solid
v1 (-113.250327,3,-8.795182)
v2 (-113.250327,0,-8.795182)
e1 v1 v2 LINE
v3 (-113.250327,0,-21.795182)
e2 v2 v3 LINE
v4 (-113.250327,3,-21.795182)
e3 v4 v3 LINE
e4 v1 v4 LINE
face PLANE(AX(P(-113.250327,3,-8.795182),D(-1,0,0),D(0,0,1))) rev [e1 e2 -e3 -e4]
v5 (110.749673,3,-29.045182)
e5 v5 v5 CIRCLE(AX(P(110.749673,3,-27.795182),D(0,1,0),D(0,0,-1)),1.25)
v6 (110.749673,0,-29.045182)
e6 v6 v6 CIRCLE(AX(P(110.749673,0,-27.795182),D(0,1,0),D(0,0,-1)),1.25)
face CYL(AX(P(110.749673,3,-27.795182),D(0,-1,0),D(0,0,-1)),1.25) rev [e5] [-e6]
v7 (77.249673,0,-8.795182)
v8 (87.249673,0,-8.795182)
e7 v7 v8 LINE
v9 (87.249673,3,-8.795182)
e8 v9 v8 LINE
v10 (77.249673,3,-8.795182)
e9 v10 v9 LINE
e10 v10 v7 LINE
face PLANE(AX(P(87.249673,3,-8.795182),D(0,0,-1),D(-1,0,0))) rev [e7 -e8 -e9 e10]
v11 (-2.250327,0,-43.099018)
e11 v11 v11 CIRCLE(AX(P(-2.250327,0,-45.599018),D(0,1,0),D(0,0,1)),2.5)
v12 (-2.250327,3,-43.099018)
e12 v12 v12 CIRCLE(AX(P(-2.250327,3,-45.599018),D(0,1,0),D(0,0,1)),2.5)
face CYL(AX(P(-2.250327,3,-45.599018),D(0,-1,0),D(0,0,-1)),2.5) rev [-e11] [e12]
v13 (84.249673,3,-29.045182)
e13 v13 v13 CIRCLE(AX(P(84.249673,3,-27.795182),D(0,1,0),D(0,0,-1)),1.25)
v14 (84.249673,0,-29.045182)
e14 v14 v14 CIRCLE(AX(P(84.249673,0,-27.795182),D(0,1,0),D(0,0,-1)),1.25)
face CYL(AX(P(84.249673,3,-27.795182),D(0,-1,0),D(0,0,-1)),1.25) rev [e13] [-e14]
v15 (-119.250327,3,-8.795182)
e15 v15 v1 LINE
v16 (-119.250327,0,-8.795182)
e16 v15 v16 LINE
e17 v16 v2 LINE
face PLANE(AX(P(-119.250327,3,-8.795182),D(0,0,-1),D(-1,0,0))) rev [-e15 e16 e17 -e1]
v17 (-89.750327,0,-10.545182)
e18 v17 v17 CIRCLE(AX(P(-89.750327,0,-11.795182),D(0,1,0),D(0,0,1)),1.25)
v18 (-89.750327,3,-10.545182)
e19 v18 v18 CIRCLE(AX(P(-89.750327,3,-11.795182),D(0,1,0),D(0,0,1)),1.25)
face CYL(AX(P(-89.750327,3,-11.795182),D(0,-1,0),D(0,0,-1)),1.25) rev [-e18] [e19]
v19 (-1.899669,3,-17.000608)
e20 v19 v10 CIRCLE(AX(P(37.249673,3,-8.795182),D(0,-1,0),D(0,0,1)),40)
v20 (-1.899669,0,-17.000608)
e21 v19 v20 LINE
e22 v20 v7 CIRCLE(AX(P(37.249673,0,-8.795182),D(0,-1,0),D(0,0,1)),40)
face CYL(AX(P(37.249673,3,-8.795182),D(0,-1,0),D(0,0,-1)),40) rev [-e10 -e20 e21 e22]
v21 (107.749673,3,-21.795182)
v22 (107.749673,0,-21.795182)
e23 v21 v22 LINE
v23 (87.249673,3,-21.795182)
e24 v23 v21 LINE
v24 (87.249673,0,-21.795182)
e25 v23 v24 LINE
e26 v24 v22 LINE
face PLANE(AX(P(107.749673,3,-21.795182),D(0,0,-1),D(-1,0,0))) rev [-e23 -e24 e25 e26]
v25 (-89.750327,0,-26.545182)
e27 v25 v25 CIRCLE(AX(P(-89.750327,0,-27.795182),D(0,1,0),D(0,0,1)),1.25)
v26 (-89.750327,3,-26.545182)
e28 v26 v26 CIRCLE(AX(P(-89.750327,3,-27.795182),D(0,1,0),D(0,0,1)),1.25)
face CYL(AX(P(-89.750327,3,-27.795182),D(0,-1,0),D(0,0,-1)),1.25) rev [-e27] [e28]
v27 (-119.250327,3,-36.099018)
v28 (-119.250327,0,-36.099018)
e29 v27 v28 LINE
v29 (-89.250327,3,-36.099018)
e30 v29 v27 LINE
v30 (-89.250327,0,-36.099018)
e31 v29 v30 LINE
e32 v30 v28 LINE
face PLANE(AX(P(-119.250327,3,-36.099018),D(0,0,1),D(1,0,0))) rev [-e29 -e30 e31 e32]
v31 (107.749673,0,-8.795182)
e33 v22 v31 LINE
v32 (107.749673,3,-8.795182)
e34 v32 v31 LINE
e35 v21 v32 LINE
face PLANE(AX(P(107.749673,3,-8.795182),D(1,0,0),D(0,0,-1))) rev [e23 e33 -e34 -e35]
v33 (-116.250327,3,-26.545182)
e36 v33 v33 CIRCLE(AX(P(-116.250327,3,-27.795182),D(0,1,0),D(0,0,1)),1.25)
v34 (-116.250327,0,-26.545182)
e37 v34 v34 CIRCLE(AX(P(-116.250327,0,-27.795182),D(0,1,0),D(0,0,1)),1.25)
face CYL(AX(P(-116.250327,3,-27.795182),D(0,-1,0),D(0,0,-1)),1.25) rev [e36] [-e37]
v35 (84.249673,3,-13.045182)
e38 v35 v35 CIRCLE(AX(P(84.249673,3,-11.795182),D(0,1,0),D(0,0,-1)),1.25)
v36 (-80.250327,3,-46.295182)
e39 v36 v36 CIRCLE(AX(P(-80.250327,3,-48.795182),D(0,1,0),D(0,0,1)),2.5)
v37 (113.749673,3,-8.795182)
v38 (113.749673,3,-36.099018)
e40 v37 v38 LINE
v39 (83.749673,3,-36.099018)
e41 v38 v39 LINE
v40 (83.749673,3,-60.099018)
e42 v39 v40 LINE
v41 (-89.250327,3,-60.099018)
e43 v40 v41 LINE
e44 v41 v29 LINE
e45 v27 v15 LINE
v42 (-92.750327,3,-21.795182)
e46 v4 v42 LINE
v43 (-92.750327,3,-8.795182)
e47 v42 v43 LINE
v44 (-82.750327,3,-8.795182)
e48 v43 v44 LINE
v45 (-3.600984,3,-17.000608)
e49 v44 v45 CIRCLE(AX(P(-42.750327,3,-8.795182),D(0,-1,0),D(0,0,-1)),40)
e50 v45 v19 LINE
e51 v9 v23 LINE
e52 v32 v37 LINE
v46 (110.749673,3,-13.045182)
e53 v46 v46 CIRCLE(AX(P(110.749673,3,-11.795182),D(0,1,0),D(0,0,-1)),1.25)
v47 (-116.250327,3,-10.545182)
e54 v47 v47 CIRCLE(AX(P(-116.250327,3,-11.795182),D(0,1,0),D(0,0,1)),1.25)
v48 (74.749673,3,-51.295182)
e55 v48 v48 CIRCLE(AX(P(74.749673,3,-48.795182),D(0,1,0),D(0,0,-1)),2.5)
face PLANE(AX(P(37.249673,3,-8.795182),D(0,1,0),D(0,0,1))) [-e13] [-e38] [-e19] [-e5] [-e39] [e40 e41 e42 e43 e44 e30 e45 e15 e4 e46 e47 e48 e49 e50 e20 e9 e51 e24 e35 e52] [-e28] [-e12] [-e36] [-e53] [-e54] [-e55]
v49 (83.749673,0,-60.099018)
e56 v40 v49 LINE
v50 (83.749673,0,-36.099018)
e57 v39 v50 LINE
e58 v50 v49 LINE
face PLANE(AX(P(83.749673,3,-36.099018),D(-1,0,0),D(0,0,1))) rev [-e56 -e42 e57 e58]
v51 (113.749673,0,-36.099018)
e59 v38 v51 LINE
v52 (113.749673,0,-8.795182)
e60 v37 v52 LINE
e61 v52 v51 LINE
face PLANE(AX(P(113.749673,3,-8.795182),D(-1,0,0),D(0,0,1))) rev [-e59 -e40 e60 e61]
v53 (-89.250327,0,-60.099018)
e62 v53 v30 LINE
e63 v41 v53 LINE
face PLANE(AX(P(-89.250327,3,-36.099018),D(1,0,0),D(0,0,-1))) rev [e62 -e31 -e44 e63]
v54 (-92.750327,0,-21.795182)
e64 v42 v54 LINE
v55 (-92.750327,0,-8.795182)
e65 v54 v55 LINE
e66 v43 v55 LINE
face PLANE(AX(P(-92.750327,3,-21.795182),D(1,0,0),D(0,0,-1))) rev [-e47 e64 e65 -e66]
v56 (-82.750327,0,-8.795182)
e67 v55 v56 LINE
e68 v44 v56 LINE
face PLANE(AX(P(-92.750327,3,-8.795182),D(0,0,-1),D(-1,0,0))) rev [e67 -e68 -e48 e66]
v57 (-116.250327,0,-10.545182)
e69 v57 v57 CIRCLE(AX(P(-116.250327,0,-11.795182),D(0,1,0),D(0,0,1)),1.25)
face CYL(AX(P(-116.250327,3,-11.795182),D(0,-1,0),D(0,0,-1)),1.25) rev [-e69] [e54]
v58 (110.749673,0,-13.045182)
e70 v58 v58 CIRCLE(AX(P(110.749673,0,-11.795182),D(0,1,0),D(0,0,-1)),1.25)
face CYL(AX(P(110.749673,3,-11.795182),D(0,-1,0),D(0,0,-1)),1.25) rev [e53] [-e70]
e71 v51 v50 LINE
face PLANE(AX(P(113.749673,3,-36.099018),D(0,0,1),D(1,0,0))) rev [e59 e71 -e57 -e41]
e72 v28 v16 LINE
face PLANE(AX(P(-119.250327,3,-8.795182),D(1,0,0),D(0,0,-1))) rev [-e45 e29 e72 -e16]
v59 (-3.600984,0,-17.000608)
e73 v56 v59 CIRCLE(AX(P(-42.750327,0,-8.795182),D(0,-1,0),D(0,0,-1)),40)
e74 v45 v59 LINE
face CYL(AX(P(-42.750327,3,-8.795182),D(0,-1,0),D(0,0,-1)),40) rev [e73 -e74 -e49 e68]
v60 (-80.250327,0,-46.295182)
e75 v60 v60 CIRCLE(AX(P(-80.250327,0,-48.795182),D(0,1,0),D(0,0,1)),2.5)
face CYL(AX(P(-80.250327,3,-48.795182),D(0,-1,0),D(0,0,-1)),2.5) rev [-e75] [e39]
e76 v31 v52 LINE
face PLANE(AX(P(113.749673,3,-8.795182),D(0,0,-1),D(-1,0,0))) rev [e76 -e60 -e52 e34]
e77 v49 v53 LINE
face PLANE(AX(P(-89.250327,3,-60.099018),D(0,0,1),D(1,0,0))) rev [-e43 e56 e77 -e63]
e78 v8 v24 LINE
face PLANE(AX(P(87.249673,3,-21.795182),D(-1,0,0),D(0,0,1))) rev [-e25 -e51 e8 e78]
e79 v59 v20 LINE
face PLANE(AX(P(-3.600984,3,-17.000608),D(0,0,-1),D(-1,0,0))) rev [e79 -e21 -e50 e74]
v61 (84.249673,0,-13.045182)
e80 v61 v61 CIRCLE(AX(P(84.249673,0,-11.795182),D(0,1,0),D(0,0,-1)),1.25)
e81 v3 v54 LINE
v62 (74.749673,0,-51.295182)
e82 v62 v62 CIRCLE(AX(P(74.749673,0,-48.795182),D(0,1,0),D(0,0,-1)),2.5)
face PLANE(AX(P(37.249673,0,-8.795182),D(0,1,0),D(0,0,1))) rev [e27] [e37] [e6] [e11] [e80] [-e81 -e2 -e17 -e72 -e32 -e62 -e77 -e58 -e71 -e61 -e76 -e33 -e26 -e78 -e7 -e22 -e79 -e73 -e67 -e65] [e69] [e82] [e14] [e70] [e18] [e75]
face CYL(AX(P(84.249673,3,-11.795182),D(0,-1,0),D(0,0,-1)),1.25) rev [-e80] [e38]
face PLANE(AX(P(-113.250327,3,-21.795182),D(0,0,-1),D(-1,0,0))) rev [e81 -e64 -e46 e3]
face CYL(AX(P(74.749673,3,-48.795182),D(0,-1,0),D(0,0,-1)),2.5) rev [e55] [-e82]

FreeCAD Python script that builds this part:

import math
import FreeCAD as App
import Part
import Sketcher
from FreeCAD import Vector

doc = App.newDocument("Part")
params = doc.addObject("Spreadsheet::Sheet", "Params")
for row, (alias, value) in enumerate([
    ("sketch1_diameter", "5 mm"),
    ("sketch1_radius", "40 mm"),
    ("sketch1_diameter2", "2.5 mm"),
    ("sketch1_width", "6 mm"),
    ("sketch1_width2", "10 mm"),
    ("pad1_length", "3 mm"),
], start=1):
    params.set(f"A{row}", alias)
    params.set(f"B{row}", "=" + value)
    params.setAlias(f"B{row}", alias)

body = doc.addObject("PartDesign::Body", "Body")

sketch1 = doc.addObject("Sketcher::SketchObject", "Sketch")
body.addObject(sketch1)
sketch1.AttachmentSupport = (doc.XZ_Plane, [""])
sketch1.MapMode = "FlatFace"
sketch1.addGeometry([
    Part.LineSegment(Vector(-119.3, -8.8, 0), Vector(-113.3, -8.8, 0)),
    Part.LineSegment(Vector(-113.3, -8.8, 0), Vector(-113.3, -21.8, 0)),
    Part.LineSegment(Vector(-113.3, -21.8, 0), Vector(-92.8, -21.8, 0)),
    Part.LineSegment(Vector(-92.8, -21.8, 0), Vector(-92.8, -8.8, 0)),
    Part.LineSegment(Vector(-92.8, -8.8, 0), Vector(-82.8, -8.8, 0)),
    Part.ArcOfCircle(Part.Circle(Vector(-42.8, -8.8, 0), Vector(0, 0, 1), 40), math.radians(180), math.radians(348)),
    Part.LineSegment(Vector(-3.6, -17, 0), Vector(-1.9, -17, 0)),
    Part.ArcOfCircle(Part.Circle(Vector(37.2, -8.8, 0), Vector(0, 0, 1), 40), math.radians(-168), math.radians(0)),
    Part.LineSegment(Vector(77.2, -8.8, 0), Vector(87.2, -8.8, 0)),
    Part.LineSegment(Vector(87.2, -8.8, 0), Vector(87.2, -21.8, 0)),
    Part.LineSegment(Vector(87.2, -21.8, 0), Vector(107.7, -21.8, 0)),
    Part.LineSegment(Vector(107.7, -21.8, 0), Vector(107.7, -8.8, 0)),
    Part.LineSegment(Vector(107.7, -8.8, 0), Vector(113.7, -8.8, 0)),
    Part.LineSegment(Vector(113.7, -8.8, 0), Vector(113.7, -36.1, 0)),
    Part.LineSegment(Vector(113.7, -36.1, 0), Vector(83.7, -36.1, 0)),
    Part.LineSegment(Vector(83.7, -36.1, 0), Vector(83.7, -60.1, 0)),
    Part.LineSegment(Vector(83.7, -60.1, 0), Vector(-89.3, -60.1, 0)),
    Part.LineSegment(Vector(-89.3, -60.1, 0), Vector(-89.3, -36.1, 0)),
    Part.LineSegment(Vector(-89.3, -36.1, 0), Vector(-119.3, -36.1, 0)),
    Part.LineSegment(Vector(-119.3, -36.1, 0), Vector(-119.3, -8.8, 0)),
    Part.Circle(Vector(-116.3, -11.8, 0), Vector(0, 0, 1), 1.2),
    Part.Circle(Vector(-89.8, -11.8, 0), Vector(0, 0, 1), 1.2),
    Part.Circle(Vector(-116.3, -27.8, 0), Vector(0, 0, 1), 1.2),
    Part.Circle(Vector(-89.8, -27.8, 0), Vector(0, 0, 1), 1.2),
    Part.Circle(Vector(84.2, -11.8, 0), Vector(0, 0, 1), 1.2),
    Part.Circle(Vector(110.7, -11.8, 0), Vector(0, 0, 1), 1.2),
    Part.Circle(Vector(84.2, -27.8, 0), Vector(0, 0, 1), 1.2),
    Part.Circle(Vector(110.7, -27.8, 0), Vector(0, 0, 1), 1.2),
    Part.Circle(Vector(-80.3, -48.8, 0), Vector(0, 0, 1), 2.5),
    Part.Circle(Vector(-2.3, -45.6, 0), Vector(0, 0, 1), 2.5),
    Part.Circle(Vector(74.7, -48.8, 0), Vector(0, 0, 1), 2.5),
], False)
sketch1.addConstraint([
    Sketcher.Constraint("Coincident", 0, 2, 1, 1),
    Sketcher.Constraint("Coincident", 1, 2, 2, 1),
    Sketcher.Constraint("Coincident", 2, 2, 3, 1),
    Sketcher.Constraint("Coincident", 3, 2, 4, 1),
    Sketcher.Constraint("Coincident", 4, 2, 5, 1),
    Sketcher.Constraint("Coincident", 5, 2, 6, 1),
    Sketcher.Constraint("Coincident", 6, 2, 7, 1),
    Sketcher.Constraint("Coincident", 7, 2, 8, 1),
    Sketcher.Constraint("Coincident", 8, 2, 9, 1),
    Sketcher.Constraint("Coincident", 9, 2, 10, 1),
    Sketcher.Constraint("Coincident", 10, 2, 11, 1),
    Sketcher.Constraint("Coincident", 11, 2, 12, 1),
    Sketcher.Constraint("Coincident", 12, 2, 13, 1),
    Sketcher.Constraint("Coincident", 13, 2, 14, 1),
    Sketcher.Constraint("Coincident", 14, 2, 15, 1),
    Sketcher.Constraint("Coincident", 15, 2, 16, 1),
    Sketcher.Constraint("Coincident", 16, 2, 17, 1),
    Sketcher.Constraint("Coincident", 17, 2, 18, 1),
    Sketcher.Constraint("Coincident", 18, 2, 19, 1),
    Sketcher.Constraint("Coincident", 19, 2, 0, 1),
    Sketcher.Constraint("Horizontal", 0),
    Sketcher.Constraint("Vertical", 1),
    Sketcher.Constraint("Horizontal", 2),
    Sketcher.Constraint("Vertical", 3),
    Sketcher.Constraint("Horizontal", 4),
    Sketcher.Constraint("Horizontal", 6),
    Sketcher.Constraint("Horizontal", 8),
    Sketcher.Constraint("Vertical", 9),
    Sketcher.Constraint("Horizontal", 10),
    Sketcher.Constraint("Vertical", 11),
    Sketcher.Constraint("Horizontal", 12),
    Sketcher.Constraint("Vertical", 13),
    Sketcher.Constraint("Horizontal", 14),
    Sketcher.Constraint("Vertical", 15),
    Sketcher.Constraint("Horizontal", 16),
    Sketcher.Constraint("Vertical", 17),
    Sketcher.Constraint("Horizontal", 18),
    Sketcher.Constraint("Vertical", 19),
    Sketcher.Constraint("Equal", 5, 7),
    Sketcher.Constraint("Equal", 20, 21),
    Sketcher.Constraint("Equal", 21, 22),
    Sketcher.Constraint("Equal", 22, 23),
    Sketcher.Constraint("Equal", 23, 24),
    Sketcher.Constraint("Equal", 24, 25),
    Sketcher.Constraint("Equal", 25, 26),
    Sketcher.Constraint("Equal", 26, 27),
    Sketcher.Constraint("Equal", 28, 29),
    Sketcher.Constraint("Equal", 29, 30),
    Sketcher.Constraint("Horizontal", 5, 3, 7, 3),
    Sketcher.Constraint("Horizontal", 20, 3, 21, 3),
    Sketcher.Constraint("Horizontal", 22, 3, 23, 3),
    Sketcher.Constraint("Horizontal", 21, 3, 24, 3),
    Sketcher.Constraint("Horizontal", 24, 3, 25, 3),
    Sketcher.Constraint("Horizontal", 23, 3, 26, 3),
    Sketcher.Constraint("Horizontal", 26, 3, 27, 3),
    Sketcher.Constraint("Horizontal", 28, 3, 30, 3),
    Sketcher.Constraint("Horizontal", 7, 3, 0, 2),
    Sketcher.Constraint("Horizontal", 0, 2, 3, 2),
    Sketcher.Constraint("Horizontal", 4, 2, 7, 2),
    Sketcher.Constraint("Horizontal", 2, 2, 9, 2),
    Sketcher.Constraint("Horizontal", 8, 2, 11, 2),
    Sketcher.Constraint("Horizontal", 14, 2, 17, 2),
    Sketcher.Constraint("Vertical", 20, 3, 22, 3),
    Sketcher.Constraint("Vertical", 21, 3, 23, 3),
    Sketcher.Constraint("Vertical", 24, 3, 26, 3),
    Sketcher.Constraint("Vertical", 25, 3, 27, 3),
    Sketcher.Constraint("Equal", 4, 8),
    Sketcher.Constraint("Equal", 2, 10),
    Sketcher.Constraint("Equal", 0, 12),
    Sketcher.Constraint("Equal", 14, 18),
    Sketcher.Constraint("Diameter", 28, 5.0),
    Sketcher.Constraint("Radius", 5, 40.0),
    Sketcher.Constraint("Diameter", 20, 2.5),
    Sketcher.Constraint("DistanceX", 0, 1, 0, 2, 6.0),
    Sketcher.Constraint("DistanceX", 4, 1, 4, 2, 10.0),
    Sketcher.Constraint("DistanceX", 14, 2, 14, 1, 30.0),
    Sketcher.Constraint("DistanceX", 16, 2, 16, 1, 173.0),
    Sketcher.Constraint("DistanceY", 1, 2, 1, 1, 13.0),
    Sketcher.Constraint("DistanceY", 15, 2, 15, 1, 24.0),
    Sketcher.Constraint("DistanceX", 2, 1, 2, 2, 20.5),
    Sketcher.Constraint("DistanceY", 20, 3, 5, 3, 3.0),
    Sketcher.Constraint("DistanceX", 21, 3, 5, 3, 47.0),
    Sketcher.Constraint("DistanceY", 22, 3, 20, 3, 16.0),
    Sketcher.Constraint("DistanceX", 7, 3, 24, 3, 47.0),
    Sketcher.Constraint("DistanceY", 28, 3, 23, 3, 21.0),
    Sketcher.Constraint("DistanceX", 22, 3, 28, 3, 36.0),
    Sketcher.Constraint("DistanceX", 28, 3, 29, 3, 78.0),
    Sketcher.Constraint("DistanceX", 30, 3, 27, 3, 36.0),
    Sketcher.Constraint("DistanceX", 20, 3, 0, 2, 3.0),
    Sketcher.Constraint("DistanceX", 10, 2, 27, 3, 3.0),
    Sketcher.Constraint("DistanceX", 6, 1, 6, 2, 1.701316),
    Sketcher.Constraint("DistanceY", 13, 2, 13, 1, 27.303836),
    Sketcher.Constraint("DistanceY", 29, 3, -1, 1, 45.599018),
    Sketcher.Constraint("DistanceX", 6, 2, -1, 1, 1.899669),
    Sketcher.Constraint("DistanceY", 13, 2, -1, 1, 36.099018),
])
sketch1.setExpression("Constraints[70]", "Params.sketch1_diameter")
sketch1.setExpression("Constraints[71]", "Params.sketch1_radius")
sketch1.setExpression("Constraints[72]", "Params.sketch1_diameter2")
sketch1.setExpression("Constraints[73]", "Params.sketch1_width")
sketch1.setExpression("Constraints[74]", "Params.sketch1_width2")
pad1 = doc.addObject("PartDesign::Pad", "Pad")
body.addObject(pad1)
pad1.Profile = sketch1
pad1.setExpression("Length", "Params.pad1_length")
pad1.Reversed = True

doc.recompute()
